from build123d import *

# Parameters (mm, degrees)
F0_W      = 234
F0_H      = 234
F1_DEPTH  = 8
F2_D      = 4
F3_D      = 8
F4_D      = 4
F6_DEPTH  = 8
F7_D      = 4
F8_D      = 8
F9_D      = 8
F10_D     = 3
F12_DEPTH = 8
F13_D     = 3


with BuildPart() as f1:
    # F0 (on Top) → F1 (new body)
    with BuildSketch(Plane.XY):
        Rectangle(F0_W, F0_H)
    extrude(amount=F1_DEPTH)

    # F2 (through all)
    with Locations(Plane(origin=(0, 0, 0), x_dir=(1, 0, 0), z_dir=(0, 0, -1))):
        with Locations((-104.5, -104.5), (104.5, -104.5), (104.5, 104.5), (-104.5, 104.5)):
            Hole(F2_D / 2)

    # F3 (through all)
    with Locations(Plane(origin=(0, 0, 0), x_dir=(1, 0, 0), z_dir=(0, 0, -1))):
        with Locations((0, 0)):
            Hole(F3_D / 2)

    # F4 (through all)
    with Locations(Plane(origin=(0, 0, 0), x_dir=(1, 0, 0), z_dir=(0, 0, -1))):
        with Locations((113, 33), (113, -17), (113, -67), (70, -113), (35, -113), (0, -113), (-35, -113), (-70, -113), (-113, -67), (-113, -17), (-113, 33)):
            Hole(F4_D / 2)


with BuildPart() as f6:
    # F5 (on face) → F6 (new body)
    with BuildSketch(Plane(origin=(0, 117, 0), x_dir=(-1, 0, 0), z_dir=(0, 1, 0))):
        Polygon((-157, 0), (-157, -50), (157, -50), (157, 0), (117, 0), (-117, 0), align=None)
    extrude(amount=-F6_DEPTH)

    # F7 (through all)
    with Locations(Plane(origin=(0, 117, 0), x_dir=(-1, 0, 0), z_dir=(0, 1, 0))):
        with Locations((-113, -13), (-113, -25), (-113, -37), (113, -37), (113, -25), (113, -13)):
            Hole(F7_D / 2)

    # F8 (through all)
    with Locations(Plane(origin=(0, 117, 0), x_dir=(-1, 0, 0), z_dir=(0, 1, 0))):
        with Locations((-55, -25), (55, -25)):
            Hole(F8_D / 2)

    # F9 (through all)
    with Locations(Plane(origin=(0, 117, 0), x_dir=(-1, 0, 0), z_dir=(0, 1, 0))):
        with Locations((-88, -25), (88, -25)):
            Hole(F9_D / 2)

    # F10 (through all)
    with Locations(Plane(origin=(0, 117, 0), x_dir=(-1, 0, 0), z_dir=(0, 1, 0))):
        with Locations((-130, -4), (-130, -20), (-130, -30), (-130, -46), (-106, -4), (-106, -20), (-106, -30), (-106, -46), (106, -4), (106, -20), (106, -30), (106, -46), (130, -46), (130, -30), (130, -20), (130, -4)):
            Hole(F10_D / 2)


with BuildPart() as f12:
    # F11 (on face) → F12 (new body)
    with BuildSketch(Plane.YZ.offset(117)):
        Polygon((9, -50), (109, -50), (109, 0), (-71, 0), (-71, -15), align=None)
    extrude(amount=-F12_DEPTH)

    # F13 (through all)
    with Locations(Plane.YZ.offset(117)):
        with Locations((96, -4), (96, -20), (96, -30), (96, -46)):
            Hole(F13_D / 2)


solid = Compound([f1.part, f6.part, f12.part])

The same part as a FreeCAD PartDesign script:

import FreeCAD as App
import Part
import Sketcher

V = App.Vector
Q = App.Units.Quantity

doc = App.newDocument("Part")
params = doc.addObject("Spreadsheet::Sheet", "Params")
for row, (alias, value) in enumerate([
    ("sketch1_width", "234 mm"),
    ("pad1_length", "8 mm"),
    ("sketch2_diameter", "4 mm"),
    ("hole_diameter", "4 mm"),
    ("sketch3_diameter", "8 mm"),
    ("hole2_diameter", "8 mm"),
    ("sketch4_diameter", "4 mm"),
    ("hole3_diameter", "4 mm"),
    ("sketch5_width", "314 mm"),
    ("sketch5_height", "50 mm"),
    ("pad2_length", "8 mm"),
    ("sketch6_diameter", "4 mm"),
    ("hole4_diameter", "4 mm"),
    ("sketch7_diameter", "8 mm"),
    ("hole5_diameter", "8 mm"),
    ("sketch8_diameter", "8 mm"),
    ("hole6_diameter", "8 mm"),
    ("sketch9_diameter", "3 mm"),
    ("hole7_diameter", "3 mm"),
    ("sketch10_width", "100 mm"),
    ("sketch10_width2", "180 mm"),
    ("sketch10_height", "50 mm"),
    ("sketch10_height2", "15 mm"),
    ("pad3_length", "8 mm"),
    ("sketch11_diameter", "3 mm"),
    ("hole8_diameter", "3 mm"),
], start=1):
    params.set(f"A{row}", alias)
    params.set(f"B{row}", "=" + value)
    params.setAlias(f"B{row}", alias)

body = doc.addObject("PartDesign::Body", "Body")

# Sketch on XY plane
sketch1 = body.newObject("Sketcher::SketchObject", "Sketch")
sketch1.AttachmentSupport = (doc.getObject("XY_Plane"), [""])
sketch1.MapMode = "FlatFace"
sketch1.addGeometry(Part.LineSegment(V(-117, 117, 0), V(-117, -117, 0)), False)
sketch1.addGeometry(Part.LineSegment(V(-117, -117, 0), V(117, -117, 0)), False)
sketch1.addGeometry(Part.LineSegment(V(117, -117, 0), V(117, 117, 0)), False)
sketch1.addGeometry(Part.LineSegment(V(117, 117, 0), V(-117, 117, 0)), False)
sketch1.addConstraint(Sketcher.Constraint("Coincident", 0, 2, 1, 1))
sketch1.addConstraint(Sketcher.Constraint("Coincident", 1, 2, 2, 1))
sketch1.addConstraint(Sketcher.Constraint("Coincident", 2, 2, 3, 1))
sketch1.addConstraint(Sketcher.Constraint("Coincident", 3, 2, 0, 1))
sketch1.addConstraint(Sketcher.Constraint("Vertical", 0))
sketch1.addConstraint(Sketcher.Constraint("Horizontal", 1))
sketch1.addConstraint(Sketcher.Constraint("Vertical", 2))
sketch1.addConstraint(Sketcher.Constraint("Horizontal", 3))
sketch1.addConstraint(Sketcher.Constraint("Symmetric", 0, 2, 2, 2, -1, 1))
sketch1.addConstraint(Sketcher.Constraint("Equal", 3, 0))
sketch1.addConstraint(Sketcher.Constraint("DistanceX", 1, 1, 1, 2, Q("234 mm")))
sketch1.setExpression("Constraints[10]", "Params.sketch1_width")
pad1 = body.newObject("PartDesign::Pad", "Pad")
pad1.Profile = sketch1
pad1.setExpression("Length", "Params.pad1_length")

# Sketch on XY plane
sketch2 = body.newObject("Sketcher::SketchObject", "Sketch001")
sketch2.AttachmentSupport = (doc.getObject("XY_Plane"), [""])
sketch2.MapMode = "FlatFace"
sketch2.addGeometry(Part.Circle(V(-104.5, 104.5, 0), V(0, 0, 1), 2), False)
sketch2.addGeometry(Part.Circle(V(104.5, 104.5, 0), V(0, 0, 1), 2), False)
sketch2.addGeometry(Part.Circle(V(104.5, -104.5, 0), V(0, 0, 1), 2), False)
sketch2.addGeometry(Part.Circle(V(-104.5, -104.5, 0), V(0, 0, 1), 2), False)
sketch2.addConstraint(Sketcher.Constraint("Equal", 0, 1))
sketch2.addConstraint(Sketcher.Constraint("Equal", 1, 2))
sketch2.addConstraint(Sketcher.Constraint("Equal", 2, 3))
sketch2.addConstraint(Sketcher.Constraint("Symmetric", 0, 3, 2, 3, -1, 1))
sketch2.addConstraint(Sketcher.Constraint("Symmetric", 1, 3, 3, 3, -1, 1))
sketch2.addConstraint(Sketcher.Constraint("Symmetric", 0, 3, 1, 3, -2))
sketch2.addConstraint(Sketcher.Constraint("Diameter", 0, Q("4 mm")))
sketch2.addConstraint(Sketcher.Constraint("DistanceX", 0, 3, 1, 3, Q("209 mm")))
sketch2.addConstraint(Sketcher.Constraint("DistanceY", 2, 3, 1, 3, Q("209 mm")))
sketch2.setExpression("Constraints[6]", "Params.sketch2_diameter")
doc.recompute()
hole = body.newObject("PartDesign::Hole", "Hole")
hole.Profile = sketch2
hole.ThreadType = "None"
hole.setExpression("Diameter", "Params.hole_diameter")
hole.DepthType = "ThroughAll"
hole.Reversed = True

# Sketch on XY plane
sketch3 = body.newObject("Sketcher::SketchObject", "Sketch002")
sketch3.AttachmentSupport = (doc.getObject("XY_Plane"), [""])
sketch3.MapMode = "FlatFace"
sketch3.addGeometry(Part.Circle(V(0, 0, 0), V(0, 0, 1), 4), False)
sketch3.addConstraint(Sketcher.Constraint("Coincident", 0, 3, -1, 1))
sketch3.addConstraint(Sketcher.Constraint("Diameter", 0, Q("8 mm")))
sketch3.setExpression("Constraints[1]", "Params.sketch3_diameter")
doc.recompute()
hole2 = body.newObject("PartDesign::Hole", "Hole001")
hole2.Profile = sketch3
hole2.ThreadType = "None"
hole2.setExpression("Diameter", "Params.hole2_diameter")
hole2.DepthType = "ThroughAll"
hole2.Reversed = True

# Sketch on XY plane
sketch4 = body.newObject("Sketcher::SketchObject", "Sketch003")
sketch4.AttachmentSupport = (doc.getObject("XY_Plane"), [""])
sketch4.MapMode = "FlatFace"
sketch4.addGeometry(Part.Circle(V(113, -33, 0), V(0, 0, 1), 2), False)
sketch4.addGeometry(Part.Circle(V(113, 17, 0), V(0, 0, 1), 2), False)
sketch4.addGeometry(Part.Circle(V(113, 67, 0), V(0, 0, 1), 2), False)
sketch4.addGeometry(Part.Circle(V(70, 113, 0), V(0, 0, 1), 2), False)
sketch4.addGeometry(Part.Circle(V(35, 113, 0), V(0, 0, 1), 2), False)
sketch4.addGeometry(Part.Circle(V(0, 113, 0), V(0, 0, 1), 2), False)
sketch4.addGeometry(Part.Circle(V(-35, 113, 0), V(0, 0, 1), 2), False)
sketch4.addGeometry(Part.Circle(V(-70, 113, 0), V(0, 0, 1), 2), False)
sketch4.addGeometry(Part.Circle(V(-113, 67, 0), V(0, 0, 1), 2), False)
sketch4.addGeometry(Part.Circle(V(-113, 17, 0), V(0, 0, 1), 2), False)
sketch4.addGeometry(Part.Circle(V(-113, -33, 0), V(0, 0, 1), 2), False)
sketch4.addConstraint(Sketcher.Constraint("Equal", 0, 1))
sketch4.addConstraint(Sketcher.Constraint("Equal", 1, 2))
sketch4.addConstraint(Sketcher.Constraint("Equal", 2, 3))
sketch4.addConstraint(Sketcher.Constraint("Equal", 3, 4))
sketch4.addConstraint(Sketcher.Constraint("Equal", 4, 5))
sketch4.addConstraint(Sketcher.Constraint("Equal", 5, 6))
sketch4.addConstraint(Sketcher.Constraint("Equal", 6, 7))
sketch4.addConstraint(Sketcher.Constraint("Equal", 7, 8))
sketch4.addConstraint(Sketcher.Constraint("Equal", 8, 9))
sketch4.addConstraint(Sketcher.Constraint("Equal", 9, 10))
sketch4.addConstraint(Sketcher.Constraint("Symmetric", 4, 3, 6, 3, -2))
sketch4.addConstraint(Sketcher.Constraint("Symmetric", 3, 3, 7, 3, -2))
sketch4.addConstraint(Sketcher.Constraint("Symmetric", 2, 3, 8, 3, -2))
sketch4.addConstraint(Sketcher.Constraint("Symmetric", 1, 3, 9, 3, -2))
sketch4.addConstraint(Sketcher.Constraint("Symmetric", 0, 3, 10, 3, -2))
sketch4.addConstraint(Sketcher.Constraint("PointOnObject", 5, 3, -2))
sketch4.addConstraint(Sketcher.Constraint("Horizontal", 3, 3, 4, 3))
sketch4.addConstraint(Sketcher.Constraint("Horizontal", 4, 3, 5, 3))
sketch4.addConstraint(Sketcher.Constraint("Vertical", 0, 3, 1, 3))
sketch4.addConstraint(Sketcher.Constraint("Vertical", 1, 3, 2, 3))
sketch4.addConstraint(Sketcher.Constraint("Diameter", 0, Q("4 mm")))
sketch4.addConstraint(Sketcher.Constraint("DistanceX", -1, 1, 0, 3, Q("113 mm")))
sketch4.addConstraint(Sketcher.Constraint("DistanceY", 0, 3, -1, 1, Q("33 mm")))
sketch4.addConstraint(Sketcher.Constraint("DistanceY", -1, 1, 1, 3, Q("17 mm")))
sketch4.addConstraint(Sketcher.Constraint("DistanceY", -1, 1, 2, 3, Q("67 mm")))
sketch4.addConstraint(Sketcher.Constraint("DistanceX", -1, 1, 3, 3, Q("70 mm")))
sketch4.addConstraint(Sketcher.Constraint("DistanceY", -1, 1, 3, 3, Q("113 mm")))
sketch4.addConstraint(Sketcher.Constraint("DistanceX", -1, 1, 4, 3, Q("35 mm")))
sketch4.setExpression("Constraints[20]", "Params.sketch4_diameter")
doc.recompute()
hole3 = body.newObject("PartDesign::Hole", "Hole002")
hole3.Profile = sketch4
hole3.ThreadType = "None"
hole3.setExpression("Diameter", "Params.hole3_diameter")
hole3.DepthType = "ThroughAll"
hole3.Reversed = True
body2 = doc.addObject("PartDesign::Body", "Body001")

# Sketch on XZ plane
sketch5 = body2.newObject("Sketcher::SketchObject", "Sketch004")
sketch5.AttachmentSupport = (doc.getObject("XZ_Plane001"), [""])
sketch5.MapMode = "FlatFace"
sketch5.AttachmentOffset = App.Placement(V(0, 0, -117), App.Rotation())
sketch5.addGeometry(Part.LineSegment(V(157, 0, 0), V(157, -50, 0)), False)
sketch5.addGeometry(Part.LineSegment(V(157, -50, 0), V(-157, -50, 0)), False)
sketch5.addGeometry(Part.LineSegment(V(-157, -50, 0), V(-157, 0, 0)), False)
sketch5.addGeometry(Part.LineSegment(V(-157, 0, 0), V(157, 0, 0)), False)
sketch5.addConstraint(Sketcher.Constraint("Coincident", 0, 2, 1, 1))
sketch5.addConstraint(Sketcher.Constraint("Coincident", 1, 2, 2, 1))
sketch5.addConstraint(Sketcher.Constraint("Coincident", 2, 2, 3, 1))
sketch5.addConstraint(Sketcher.Constraint("Coincident", 3, 2, 0, 1))
sketch5.addConstraint(Sketcher.Constraint("Vertical", 0))
sketch5.addConstraint(Sketcher.Constraint("Horizontal", 1))
sketch5.addConstraint(Sketcher.Constraint("Vertical", 2))
sketch5.addConstraint(Sketcher.Constraint("Horizontal", 3))
sketch5.addConstraint(Sketcher.Constraint("Symmetric", 2, 2, 3, 2, -1, 1))
sketch5.addConstraint(Sketcher.Constraint("DistanceX", 1, 2, 1, 1, Q("314 mm")))
sketch5.addConstraint(Sketcher.Constraint("DistanceY", 0, 2, 0, 1, Q("50 mm")))
sketch5.setExpression("Constraints[9]", "Params.sketch5_width")
sketch5.setExpression("Constraints[10]", "Params.sketch5_height")
pad2 = body2.newObject("PartDesign::Pad", "Pad001")
pad2.Profile = sketch5
pad2.setExpression("Length", "Params.pad2_length")

# Sketch on XZ plane
sketch6 = body2.newObject("Sketcher::SketchObject", "Sketch005")
sketch6.AttachmentSupport = (doc.getObject("XZ_Plane001"), [""])
sketch6.MapMode = "FlatFace"
sketch6.AttachmentOffset = App.Placement(V(0, 0, -117), App.Rotation())
sketch6.addGeometry(Part.Circle(V(113, -13, 0), V(0, 0, 1), 2), False)
sketch6.addGeometry(Part.Circle(V(113, -25, 0), V(0, 0, 1), 2), False)
sketch6.addGeometry(Part.Circle(V(113, -37, 0), V(0, 0, 1), 2), False)
sketch6.addGeometry(Part.Circle(V(-113, -37, 0), V(0, 0, 1), 2), False)
sketch6.addGeometry(Part.Circle(V(-113, -25, 0), V(0, 0, 1), 2), False)
sketch6.addGeometry(Part.Circle(V(-113, -13, 0), V(0, 0, 1), 2), False)
sketch6.addConstraint(Sketcher.Constraint("Equal", 0, 1))
sketch6.addConstraint(Sketcher.Constraint("Equal", 1, 2))
sketch6.addConstraint(Sketcher.Constraint("Equal", 2, 3))
sketch6.addConstraint(Sketcher.Constraint("Equal", 3, 4))
sketch6.addConstraint(Sketcher.Constraint("Equal", 4, 5))
sketch6.addConstraint(Sketcher.Constraint("Symmetric", 2, 3, 3, 3, -2))
sketch6.addConstraint(Sketcher.Constraint("Symmetric", 1, 3, 4, 3, -2))
sketch6.addConstraint(Sketcher.Constraint("Symmetric", 0, 3, 5, 3, -2))
sketch6.addConstraint(Sketcher.Constraint("Vertical", 0, 3, 1, 3))
sketch6.addConstraint(Sketcher.Constraint("Vertical", 1, 3, 2, 3))
sketch6.addConstraint(Sketcher.Constraint("Diameter", 0, Q("4 mm")))
sketch6.addConstraint(Sketcher.Constraint("DistanceX", -1, 1, 0, 3, Q("113 mm")))
sketch6.addConstraint(Sketcher.Constraint("DistanceY", 0, 3, -1, 1, Q("13 mm")))
sketch6.addConstraint(Sketcher.Constraint("DistanceY", 1, 3, -1, 1, Q("25 mm")))
sketch6.addConstraint(Sketcher.Constraint("DistanceY", 2, 3, -1, 1, Q("37 mm")))
sketch6.setExpression("Constraints[10]", "Params.sketch6_diameter")
doc.recompute()
hole4 = body2.newObject("PartDesign::Hole", "Hole003")
hole4.Profile = sketch6
hole4.ThreadType = "None"
hole4.setExpression("Diameter", "Params.hole4_diameter")
hole4.DepthType = "ThroughAll"
hole4.Reversed = True

# Sketch on XZ plane
sketch7 = body2.newObject("Sketcher::SketchObject", "Sketch006")
sketch7.AttachmentSupport = (doc.getObject("XZ_Plane001"), [""])
sketch7.MapMode = "FlatFace"
sketch7.AttachmentOffset = App.Placement(V(0, 0, -117), App.Rotation())
sketch7.addGeometry(Part.Circle(V(55, -25, 0), V(0, 0, 1), 4), False)
sketch7.addGeometry(Part.Circle(V(-55, -25, 0), V(0, 0, 1), 4), False)
sketch7.addConstraint(Sketcher.Constraint("Equal", 0, 1))
sketch7.addConstraint(Sketcher.Constraint("Symmetric", 0, 3, 1, 3, -2))
sketch7.addConstraint(Sketcher.Constraint("Diameter", 0, Q("8 mm")))
sketch7.addConstraint(Sketcher.Constraint("DistanceX", -1, 1, 0, 3, Q("55 mm")))
sketch7.addConstraint(Sketcher.Constraint("DistanceY", 0, 3, -1, 1, Q("25 mm")))
sketch7.setExpression("Constraints[2]", "Params.sketch7_diameter")
doc.recompute()
hole5 = body2.newObject("PartDesign::Hole", "Hole004")
hole5.Profile = sketch7
hole5.ThreadType = "None"
hole5.setExpression("Diameter", "Params.hole5_diameter")
hole5.DepthType = "ThroughAll"
hole5.Reversed = True

# Sketch on XZ plane
sketch8 = body2.newObject("Sketcher::SketchObject", "Sketch007")
sketch8.AttachmentSupport = (doc.getObject("XZ_Plane001"), [""])
sketch8.MapMode = "FlatFace"
sketch8.AttachmentOffset = App.Placement(V(0, 0, -117), App.Rotation())
sketch8.addGeometry(Part.Circle(V(88, -25, 0), V(0, 0, 1), 4), False)
sketch8.addGeometry(Part.Circle(V(-88, -25, 0), V(0, 0, 1), 4), False)
sketch8.addConstraint(Sketcher.Constraint("Equal", 0, 1))
sketch8.addConstraint(Sketcher.Constraint("Symmetric", 0, 3, 1, 3, -2))
sketch8.addConstraint(Sketcher.Constraint("Diameter", 0, Q("8 mm")))
sketch8.addConstraint(Sketcher.Constraint("DistanceX", -1, 1, 0, 3, Q("88 mm")))
sketch8.addConstraint(Sketcher.Constraint("DistanceY", 0, 3, -1, 1, Q("25 mm")))
sketch8.setExpression("Constraints[2]", "Params.sketch8_diameter")
doc.recompute()
hole6 = body2.newObject("PartDesign::Hole", "Hole005")
hole6.Profile = sketch8
hole6.ThreadType = "None"
hole6.setExpression("Diameter", "Params.hole6_diameter")
hole6.DepthType = "ThroughAll"
hole6.Reversed = True

# Sketch on XZ plane
sketch9 = body2.newObject("Sketcher::SketchObject", "Sketch008")
sketch9.AttachmentSupport = (doc.getObject("XZ_Plane001"), [""])
sketch9.MapMode = "FlatFace"
sketch9.AttachmentOffset = App.Placement(V(0, 0, -117), App.Rotation())
sketch9.addGeometry(Part.Circle(V(130, -4, 0), V(0, 0, 1), 1.5), False)
sketch9.addGeometry(Part.Circle(V(130, -20, 0), V(0, 0, 1), 1.5), False)
sketch9.addGeometry(Part.Circle(V(130, -30, 0), V(0, 0, 1), 1.5), False)
sketch9.addGeometry(Part.Circle(V(130, -46, 0), V(0, 0, 1), 1.5), False)
sketch9.addGeometry(Part.Circle(V(106, -4, 0), V(0, 0, 1), 1.5), False)
sketch9.addGeometry(Part.Circle(V(106, -20, 0), V(0, 0, 1), 1.5), False)
sketch9.addGeometry(Part.Circle(V(106, -30, 0), V(0, 0, 1), 1.5), False)
sketch9.addGeometry(Part.Circle(V(106, -46, 0), V(0, 0, 1), 1.5), False)
sketch9.addGeometry(Part.Circle(V(-106, -4, 0), V(0, 0, 1), 1.5), False)
sketch9.addGeometry(Part.Circle(V(-106, -20, 0), V(0, 0, 1), 1.5), False)
sketch9.addGeometry(Part.Circle(V(-106, -30, 0), V(0, 0, 1), 1.5), False)
sketch9.addGeometry(Part.Circle(V(-106, -46, 0), V(0, 0, 1), 1.5), False)
sketch9.addGeometry(Part.Circle(V(-130, -46, 0), V(0, 0, 1), 1.5), False)
sketch9.addGeometry(Part.Circle(V(-130, -30, 0), V(0, 0, 1), 1.5), False)
sketch9.addGeometry(Part.Circle(V(-130, -20, 0), V(0, 0, 1), 1.5), False)
sketch9.addGeometry(Part.Circle(V(-130, -4, 0), V(0, 0, 1), 1.5), False)
sketch9.addConstraint(Sketcher.Constraint("Equal", 0, 1))
sketch9.addConstraint(Sketcher.Constraint("Equal", 1, 2))
sketch9.addConstraint(Sketcher.Constraint("Equal", 2, 3))
sketch9.addConstraint(Sketcher.Constraint("Equal", 3, 4))
sketch9.addConstraint(Sketcher.Constraint("Equal", 4, 5))
sketch9.addConstraint(Sketcher.Constraint("Equal", 5, 6))
sketch9.addConstraint(Sketcher.Constraint("Equal", 6, 7))
sketch9.addConstraint(Sketcher.Constraint("Equal", 7, 8))
sketch9.addConstraint(Sketcher.Constraint("Equal", 8, 9))
sketch9.addConstraint(Sketcher.Constraint("Equal", 9, 10))
sketch9.addConstraint(Sketcher.Constraint("Equal", 10, 11))
sketch9.addConstraint(Sketcher.Constraint("Equal", 11, 12))
sketch9.addConstraint(Sketcher.Constraint("Equal", 12, 13))
sketch9.addConstraint(Sketcher.Constraint("Equal", 13, 14))
sketch9.addConstraint(Sketcher.Constraint("Equal", 14, 15))
sketch9.addConstraint(Sketcher.Constraint("Symmetric", 4, 3, 8, 3, -2))
sketch9.addConstraint(Sketcher.Constraint("Symmetric", 5, 3, 9, 3, -2))
sketch9.addConstraint(Sketcher.Constraint("Symmetric", 6, 3, 10, 3, -2))
sketch9.addConstraint(Sketcher.Constraint("Symmetric", 7, 3, 11, 3, -2))
sketch9.addConstraint(Sketcher.Constraint("Symmetric", 3, 3, 12, 3, -2))
sketch9.addConstraint(Sketcher.Constraint("Symmetric", 2, 3, 13, 3, -2))
sketch9.addConstraint(Sketcher.Constraint("Symmetric", 1, 3, 14, 3, -2))
sketch9.addConstraint(Sketcher.Constraint("Symmetric", 0, 3, 15, 3, -2))
sketch9.addConstraint(Sketcher.Constraint("Horizontal", 0, 3, 4, 3))
sketch9.addConstraint(Sketcher.Constraint("Horizontal", 1, 3, 5, 3))
sketch9.addConstraint(Sketcher.Constraint("Horizontal", 2, 3, 6, 3))
sketch9.addConstraint(Sketcher.Constraint("Horizontal", 3, 3, 7, 3))
sketch9.addConstraint(Sketcher.Constraint("Vertical", 0, 3, 1, 3))
sketch9.addConstraint(Sketcher.Constraint("Vertical", 1, 3, 2, 3))
sketch9.addConstraint(Sketcher.Constraint("Vertical", 2, 3, 3, 3))
sketch9.addConstraint(Sketcher.Constraint("Vertical", 4, 3, 5, 3))
sketch9.addConstraint(Sketcher.Constraint("Vertical", 5, 3, 6, 3))
sketch9.addConstraint(Sketcher.Constraint("Vertical", 6, 3, 7, 3))
sketch9.addConstraint(Sketcher.Constraint("Diameter", 0, Q("3 mm")))
sketch9.addConstraint(Sketcher.Constraint("DistanceX", -1, 1, 0, 3, Q("130 mm")))
sketch9.addConstraint(Sketcher.Constraint("DistanceY", 0, 3, -1, 1, Q("4 mm")))
sketch9.addConstraint(Sketcher.Constraint("DistanceY", 1, 3, -1, 1, Q("20 mm")))
sketch9.addConstraint(Sketcher.Constraint("DistanceY", 2, 3, -1, 1, Q("30 mm")))
sketch9.addConstraint(Sketcher.Constraint("DistanceY", 3, 3, -1, 1, Q("46 mm")))
sketch9.addConstraint(Sketcher.Constraint("DistanceX", -1, 1, 4, 3, Q("106 mm")))
sketch9.setExpression("Constraints[33]", "Params.sketch9_diameter")
doc.recompute()
hole7 = body2.newObject("PartDesign::Hole", "Hole006")
hole7.Profile = sketch9
hole7.ThreadType = "None"
hole7.setExpression("Diameter", "Params.hole7_diameter")
hole7.DepthType = "ThroughAll"
hole7.Reversed = True
body3 = doc.addObject("PartDesign::Body", "Body002")

# Sketch on YZ plane
sketch10 = body3.newObject("Sketcher::SketchObject", "Sketch009")
sketch10.AttachmentSupport = (doc.getObject("YZ_Plane002"), [""])
sketch10.MapMode = "FlatFace"
sketch10.AttachmentOffset = App.Placement(V(0, 0, 117), App.Rotation())
sketch10.addGeometry(Part.LineSegment(V(9, -50, 0), V(109, -50, 0)), False)
sketch10.addGeometry(Part.LineSegment(V(109, -50, 0), V(109, 0, 0)), False)
sketch10.addGeometry(Part.LineSegment(V(109, 0, 0), V(-71, 0, 0)), False)
sketch10.addGeometry(Part.LineSegment(V(-71, 0, 0), V(-71, -15, 0)), False)
sketch10.addGeometry(Part.LineSegment(V(-71, -15, 0), V(9, -50, 0)), False)
sketch10.addConstraint(Sketcher.Constraint("Coincident", 0, 2, 1, 1))
sketch10.addConstraint(Sketcher.Constraint("Coincident", 1, 2, 2, 1))
sketch10.addConstraint(Sketcher.Constraint("Coincident", 2, 2, 3, 1))
sketch10.addConstraint(Sketcher.Constraint("Coincident", 3, 2, 4, 1))
sketch10.addConstraint(Sketcher.Constraint("Coincident", 4, 2, 0, 1))
sketch10.addConstraint(Sketcher.Constraint("Horizontal", 0))
sketch10.addConstraint(Sketcher.Constraint("Vertical", 1))
sketch10.addConstraint(Sketcher.Constraint("Horizontal", 2))
sketch10.addConstraint(Sketcher.Constraint("Vertical", 3))
sketch10.addConstraint(Sketcher.Constraint("PointOnObject", 1, 2, -1))
sketch10.addConstraint(Sketcher.Constraint("DistanceX", 0, 1, 0, 2, Q("100 mm")))
sketch10.addConstraint(Sketcher.Constraint("DistanceX", 2, 2, 2, 1, Q("180 mm")))
sketch10.addConstraint(Sketcher.Constraint("DistanceY", 1, 1, 1, 2, Q("50 mm")))
sketch10.addConstraint(Sketcher.Constraint("DistanceY", 3, 2, 3, 1, Q("15 mm")))
sketch10.addConstraint(Sketcher.Constraint("DistanceX", -1, 1, 0, 2, Q("109 mm")))
sketch10.setExpression("Constraints[10]", "Params.sketch10_width")
sketch10.setExpression("Constraints[11]", "Params.sketch10_width2")
sketch10.setExpression("Constraints[12]", "Params.sketch10_height")
sketch10.setExpression("Constraints[13]", "Params.sketch10_height2")
pad3 = body3.newObject("PartDesign::Pad", "Pad002")
pad3.Profile = sketch10
pad3.setExpression("Length", "Params.pad3_length")
pad3.Reversed = True

# Sketch on YZ plane
sketch11 = body3.newObject("Sketcher::SketchObject", "Sketch010")
sketch11.AttachmentSupport = (doc.getObject("YZ_Plane002"), [""])
sketch11.MapMode = "FlatFace"
sketch11.AttachmentOffset = App.Placement(V(0, 0, 117), App.Rotation())
sketch11.addGeometry(Part.Circle(V(96, -4, 0), V(0, 0, 1), 1.5), False)
sketch11.addGeometry(Part.Circle(V(96, -20, 0), V(0, 0, 1), 1.5), False)
sketch11.addGeometry(Part.Circle(V(96, -30, 0), V(0, 0, 1), 1.5), False)
sketch11.addGeometry(Part.Circle(V(96, -46, 0), V(0, 0, 1), 1.5), False)
sketch11.addConstraint(Sketcher.Constraint("Equal", 0, 1))
sketch11.addConstraint(Sketcher.Constraint("Equal", 1, 2))
sketch11.addConstraint(Sketcher.Constraint("Equal", 2, 3))
sketch11.addConstraint(Sketcher.Constraint("Vertical", 0, 3, 1, 3))
sketch11.addConstraint(Sketcher.Constraint("Vertical", 1, 3, 2, 3))
sketch11.addConstraint(Sketcher.Constraint("Vertical", 2, 3, 3, 3))
sketch11.addConstraint(Sketcher.Constraint("Diameter", 0, Q("3 mm")))
sketch11.addConstraint(Sketcher.Constraint("DistanceX", -1, 1, 0, 3, Q("96 mm")))
sketch11.addConstraint(Sketcher.Constraint("DistanceY", 0, 3, -1, 1, Q("4 mm")))
sketch11.addConstraint(Sketcher.Constraint("DistanceY", 1, 3, -1, 1, Q("20 mm")))
sketch11.addConstraint(Sketcher.Constraint("DistanceY", 2, 3, -1, 1, Q("30 mm")))
sketch11.addConstraint(Sketcher.Constraint("DistanceY", 3, 3, -1, 1, Q("46 mm")))
sketch11.setExpression("Constraints[6]", "Params.sketch11_diameter")
doc.recompute()
hole8 = body3.newObject("PartDesign::Hole", "Hole007")
hole8.Profile = sketch11
hole8.ThreadType = "None"
hole8.setExpression("Diameter", "Params.hole8_diameter")
hole8.DepthType = "ThroughAll"

doc.recompute()
